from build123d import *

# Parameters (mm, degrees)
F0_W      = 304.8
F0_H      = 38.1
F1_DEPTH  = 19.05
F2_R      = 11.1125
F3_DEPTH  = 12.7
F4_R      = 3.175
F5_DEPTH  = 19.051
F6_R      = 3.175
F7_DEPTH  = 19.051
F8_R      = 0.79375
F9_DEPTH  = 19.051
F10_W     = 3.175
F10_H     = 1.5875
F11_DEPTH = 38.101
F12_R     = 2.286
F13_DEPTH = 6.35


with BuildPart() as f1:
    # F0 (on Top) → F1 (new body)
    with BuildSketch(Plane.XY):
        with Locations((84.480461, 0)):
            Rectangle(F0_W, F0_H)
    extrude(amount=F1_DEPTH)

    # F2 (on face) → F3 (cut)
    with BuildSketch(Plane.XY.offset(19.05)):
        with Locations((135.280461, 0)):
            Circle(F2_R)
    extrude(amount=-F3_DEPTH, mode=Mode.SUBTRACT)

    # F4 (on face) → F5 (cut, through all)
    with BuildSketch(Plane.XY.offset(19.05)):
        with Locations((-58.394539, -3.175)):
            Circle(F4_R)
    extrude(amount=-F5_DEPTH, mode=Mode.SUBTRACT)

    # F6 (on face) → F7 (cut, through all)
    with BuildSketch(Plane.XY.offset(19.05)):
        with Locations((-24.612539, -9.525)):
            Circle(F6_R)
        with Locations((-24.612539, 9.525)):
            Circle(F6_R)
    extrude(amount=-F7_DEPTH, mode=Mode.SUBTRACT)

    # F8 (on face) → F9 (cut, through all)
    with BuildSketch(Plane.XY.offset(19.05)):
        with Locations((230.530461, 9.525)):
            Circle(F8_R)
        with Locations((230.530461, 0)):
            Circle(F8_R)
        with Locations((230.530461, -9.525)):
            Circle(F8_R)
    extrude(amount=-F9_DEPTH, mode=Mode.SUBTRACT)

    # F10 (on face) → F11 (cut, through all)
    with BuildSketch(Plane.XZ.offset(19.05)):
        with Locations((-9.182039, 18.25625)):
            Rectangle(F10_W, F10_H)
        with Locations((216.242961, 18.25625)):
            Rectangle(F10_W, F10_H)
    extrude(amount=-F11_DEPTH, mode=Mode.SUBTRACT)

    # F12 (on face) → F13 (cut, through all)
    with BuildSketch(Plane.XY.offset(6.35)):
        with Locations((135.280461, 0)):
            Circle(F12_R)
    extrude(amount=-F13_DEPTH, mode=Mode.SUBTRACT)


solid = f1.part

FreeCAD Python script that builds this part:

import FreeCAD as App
import Part
import Sketcher
Q = App.Units.Quantity

doc = App.newDocument("Part")
body = doc.addObject("PartDesign::Body", "Body")

# Sketch on XY plane
sketch1 = body.newObject("Sketcher::SketchObject", "Sketch")
sketch1.AttachmentSupport = (doc.getObject("XY_Plane"), [""])
sketch1.MapMode = "FlatFace"
sketch1.addGeometry([
    Part.LineSegment(App.Vector(-68, 19, 0), App.Vector(-68, -19, 0)),
    Part.LineSegment(App.Vector(-68, -19, 0), App.Vector(237, -19, 0)),
    Part.LineSegment(App.Vector(237, -19, 0), App.Vector(237, 19, 0)),
    Part.LineSegment(App.Vector(237, 19, 0), App.Vector(-68, 19, 0)),
], False)
sketch1.addConstraint([
    Sketcher.Constraint("Coincident", 0, 2, 1, 1),
    Sketcher.Constraint("Coincident", 1, 2, 2, 1),
    Sketcher.Constraint("Coincident", 2, 2, 3, 1),
    Sketcher.Constraint("Coincident", 3, 2, 0, 1),
    Sketcher.Constraint("Vertical", 0),
    Sketcher.Constraint("Horizontal", 1),
    Sketcher.Constraint("Vertical", 2),
    Sketcher.Constraint("Horizontal", 3),
    Sketcher.Constraint("DistanceX", 1, 1, 1, 2, Q("12 in")),
    Sketcher.Constraint("DistanceY", 0, 2, 0, 1, Q("1.5 in")),
    Sketcher.Constraint("DistanceY", 0, 2, -1, 1, Q("0.75 in")),
    Sketcher.Constraint("DistanceX", 0, 2, -1, 1, Q("67.919539 mm")),
])
pad1 = body.newObject("PartDesign::Pad", "Pad")
pad1.Profile = sketch1
pad1.Length = Q("0.75 in")

# Sketch on XY plane
sketch2 = body.newObject("Sketcher::SketchObject", "Sketch001")
sketch2.AttachmentSupport = (doc.getObject("XY_Plane"), [""])
sketch2.MapMode = "FlatFace"
sketch2.AttachmentOffset = App.Placement(App.Vector(0, 0, 0.75 * 25.4), App.Rotation())
sketch2.addGeometry(Part.Circle(App.Vector(135, 0, 0), App.Vector(0, 0, 1), 11), False)
sketch2.addConstraint([
    Sketcher.Constraint("PointOnObject", 0, 3, -1),
    Sketcher.Constraint("Diameter", 0, Q("0.875 in")),
    Sketcher.Constraint("DistanceX", -1, 1, 0, 3, Q("135.280461 mm")),
])
pocket1 = body.newObject("PartDesign::Pocket", "Pocket")
pocket1.Profile = sketch2
pocket1.Length = Q("0.5 in")

# Sketch on XY plane
sketch3 = body.newObject("Sketcher::SketchObject", "Sketch002")
sketch3.AttachmentSupport = (doc.getObject("XY_Plane"), [""])
sketch3.MapMode = "FlatFace"
sketch3.AttachmentOffset = App.Placement(App.Vector(0, 0, 0.75 * 25.4), App.Rotation())
sketch3.addGeometry(Part.Circle(App.Vector(-58.4, -3.2, 0), App.Vector(0, 0, 1), 3.2), False)
sketch3.addConstraint([
    Sketcher.Constraint("Diameter", 0, Q("0.25 in")),
    Sketcher.Constraint("DistanceY", 0, 3, -1, 1, Q("0.125 in")),
    Sketcher.Constraint("DistanceX", 0, 3, -1, 1, Q("58.394539 mm")),
])
pocket2 = body.newObject("PartDesign::Pocket", "Pocket001")
pocket2.Profile = sketch3
pocket2.Type = "ThroughAll"

# Sketch on XY plane
sketch4 = body.newObject("Sketcher::SketchObject", "Sketch003")
sketch4.AttachmentSupport = (doc.getObject("XY_Plane"), [""])
sketch4.MapMode = "FlatFace"
sketch4.AttachmentOffset = App.Placement(App.Vector(0, 0, 0.75 * 25.4), App.Rotation())
sketch4.addGeometry([
    Part.Circle(App.Vector(-24.6, -9.5, 0), App.Vector(0, 0, 1), 3.2),
    Part.Circle(App.Vector(-24.6, 9.5, 0), App.Vector(0, 0, 1), 3.2),
], False)
sketch4.addConstraint([
    Sketcher.Constraint("Equal", 0, 1),
    Sketcher.Constraint("Symmetric", 0, 3, 1, 3, -1),
    Sketcher.Constraint("Diameter", 0, Q("0.25 in")),
    Sketcher.Constraint("DistanceY", 0, 3, 1, 3, Q("0.75 in")),
    Sketcher.Constraint("DistanceX", 0, 3, -1, 1, Q("24.612539 mm")),
])
pocket3 = body.newObject("PartDesign::Pocket", "Pocket002")
pocket3.Profile = sketch4
pocket3.Type = "ThroughAll"

# Sketch on XY plane
sketch5 = body.newObject("Sketcher::SketchObject", "Sketch004")
sketch5.AttachmentSupport = (doc.getObject("XY_Plane"), [""])
sketch5.MapMode = "FlatFace"
sketch5.AttachmentOffset = App.Placement(App.Vector(0, 0, 0.75 * 25.4), App.Rotation())
sketch5.addGeometry([
    Part.Circle(App.Vector(230.5, 9.5, 0), App.Vector(0, 0, 1), 0.8),
    Part.Circle(App.Vector(230.5, 0, 0), App.Vector(0, 0, 1), 0.8),
    Part.Circle(App.Vector(230.5, -9.5, 0), App.Vector(0, 0, 1), 0.8),
], False)
sketch5.addConstraint([
    Sketcher.Constraint("Equal", 0, 1),
    Sketcher.Constraint("Equal", 1, 2),
    Sketcher.Constraint("Symmetric", 0, 3, 2, 3, -1),
    Sketcher.Constraint("PointOnObject", 1, 3, -1),
    Sketcher.Constraint("Vertical", 0, 3, 1, 3),
    Sketcher.Constraint("Diameter", 0, Q("0.0625 in")),
    Sketcher.Constraint("DistanceY", 2, 3, 0, 3, Q("0.75 in")),
    Sketcher.Constraint("DistanceX", -1, 1, 0, 3, Q("230.530461 mm")),
])
pocket4 = body.newObject("PartDesign::Pocket", "Pocket003")
pocket4.Profile = sketch5
pocket4.Type = "ThroughAll"

# Sketch on XZ plane
sketch6 = body.newObject("Sketcher::SketchObject", "Sketch005")
sketch6.AttachmentSupport = (doc.getObject("XZ_Plane"), [""])
sketch6.MapMode = "FlatFace"
sketch6.AttachmentOffset = App.Placement(App.Vector(0, 0, 0.75 * 25.4), App.Rotation())
sketch6.addGeometry([
    Part.LineSegment(App.Vector(-10.8, 19.1, 0), App.Vector(-10.8, 17.5, 0)),  # 0
    Part.LineSegment(App.Vector(-10.8, 17.5, 0), App.Vector(-7.6, 17.5, 0)),  # 1
    Part.LineSegment(App.Vector(-7.6, 17.5, 0), App.Vector(-7.6, 19.1, 0)),  # 2
    Part.LineSegment(App.Vector(-7.6, 19.1, 0), App.Vector(-10.8, 19.1, 0)),  # 3
    Part.LineSegment(App.Vector(214.7, 19.1, 0), App.Vector(214.7, 17.5, 0)),  # 4
    Part.LineSegment(App.Vector(214.7, 17.5, 0), App.Vector(217.8, 17.5, 0)),  # 5
    Part.LineSegment(App.Vector(217.8, 17.5, 0), App.Vector(217.8, 19.1, 0)),  # 6
    Part.LineSegment(App.Vector(217.8, 19.1, 0), App.Vector(214.7, 19.1, 0)),  # 7
], False)
sketch6.addConstraint([
    Sketcher.Constraint("Coincident", 0, 2, 1, 1),
    Sketcher.Constraint("Coincident", 1, 2, 2, 1),
    Sketcher.Constraint("Coincident", 2, 2, 3, 1),
    Sketcher.Constraint("Coincident", 3, 2, 0, 1),
    Sketcher.Constraint("Coincident", 4, 2, 5, 1),
    Sketcher.Constraint("Coincident", 5, 2, 6, 1),
    Sketcher.Constraint("Coincident", 6, 2, 7, 1),
    Sketcher.Constraint("Coincident", 7, 2, 4, 1),
    Sketcher.Constraint("Vertical", 0),
    Sketcher.Constraint("Horizontal", 1),
    Sketcher.Constraint("Vertical", 2),
    Sketcher.Constraint("Horizontal", 3),
    Sketcher.Constraint("Vertical", 4),
    Sketcher.Constraint("Horizontal", 5),
    Sketcher.Constraint("Vertical", 6),
    Sketcher.Constraint("Horizontal", 7),
    Sketcher.Constraint("Horizontal", 1, 2, 4, 2),
    Sketcher.Constraint("Horizontal", 3, 2, 6, 2),
    Sketcher.Constraint("Equal", 3, 5),
    Sketcher.Constraint("DistanceX", 0, 2, 5, 2, Q("9 in")),
    Sketcher.Constraint("DistanceX", 1, 1, 1, 2, Q("0.125 in")),
    Sketcher.Constraint("DistanceY", 0, 2, 0, 1, Q("0.0625 in")),
    Sketcher.Constraint("DistanceY", -1, 1, 2, 2, Q("0.75 in")),
    Sketcher.Constraint("DistanceX", 0, 2, -1, 1, Q("10.769539 mm")),
])
pocket5 = body.newObject("PartDesign::Pocket", "Pocket004")
pocket5.Profile = sketch6
pocket5.Type = "ThroughAll"

# Sketch on XY plane
sketch7 = body.newObject("Sketcher::SketchObject", "Sketch006")
sketch7.AttachmentSupport = (doc.getObject("XY_Plane"), [""])
sketch7.MapMode = "FlatFace"
sketch7.AttachmentOffset = App.Placement(App.Vector(0, 0, 0.25 * 25.4), App.Rotation())
sketch7.addGeometry(Part.Circle(App.Vector(135.3, 0, 0), App.Vector(0, 0, 1), 2.3), False)
sketch7.addConstraint([
    Sketcher.Constraint("PointOnObject", 0, 3, -1),
    Sketcher.Constraint("Diameter", 0, Q("0.18 in")),
    Sketcher.Constraint("DistanceX", -1, 1, 0, 3, Q("135.280461 mm")),
])
pocket6 = body.newObject("PartDesign::Pocket", "Pocket005")
pocket6.Profile = sketch7
pocket6.Type = "ThroughAll"

doc.recompute()
